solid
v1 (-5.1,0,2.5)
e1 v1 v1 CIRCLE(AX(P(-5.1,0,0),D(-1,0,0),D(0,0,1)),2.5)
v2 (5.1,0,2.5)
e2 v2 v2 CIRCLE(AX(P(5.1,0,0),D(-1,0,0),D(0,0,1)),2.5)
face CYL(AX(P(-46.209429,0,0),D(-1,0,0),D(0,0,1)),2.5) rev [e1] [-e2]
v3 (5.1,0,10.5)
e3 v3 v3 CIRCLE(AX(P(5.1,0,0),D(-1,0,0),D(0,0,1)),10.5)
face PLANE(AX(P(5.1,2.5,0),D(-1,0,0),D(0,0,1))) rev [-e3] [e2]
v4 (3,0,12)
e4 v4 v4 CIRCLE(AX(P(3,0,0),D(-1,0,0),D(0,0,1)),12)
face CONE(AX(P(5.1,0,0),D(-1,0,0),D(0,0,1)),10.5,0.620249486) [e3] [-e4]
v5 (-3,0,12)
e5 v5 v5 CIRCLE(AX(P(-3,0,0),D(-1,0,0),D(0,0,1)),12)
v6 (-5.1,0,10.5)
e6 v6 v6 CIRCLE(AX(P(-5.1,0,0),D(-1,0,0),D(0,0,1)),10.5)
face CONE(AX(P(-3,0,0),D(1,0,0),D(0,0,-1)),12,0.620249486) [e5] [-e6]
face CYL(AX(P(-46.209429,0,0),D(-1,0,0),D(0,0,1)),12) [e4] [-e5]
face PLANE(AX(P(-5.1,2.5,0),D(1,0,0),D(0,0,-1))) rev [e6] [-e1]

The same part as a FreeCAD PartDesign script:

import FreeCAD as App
import Part
import Sketcher

V = App.Vector
Q = App.Units.Quantity

doc = App.newDocument("Part")
body = doc.addObject("PartDesign::Body", "Body")

sketch1 = doc.addObject("Sketcher::SketchObject", "Sketch")
body.addObject(sketch1)
sketch1.AttachmentSupport = (doc.XY_Plane, [""])
sketch1.MapMode = "FlatFace"
sketch1.addGeometry([
    Part.LineSegment(V(-5.1, 2.5, 0), V(5.1, 2.5, 0)),
    Part.LineSegment(V(5.1, 2.5, 0), V(5.1, 10.5, 0)),
    Part.LineSegment(V(5.1, 10.5, 0), V(3, 12, 0)),
    Part.LineSegment(V(3, 12, 0), V(-3, 12, 0)),
    Part.LineSegment(V(-3, 12, 0), V(-5.1, 10.5, 0)),
    Part.LineSegment(V(-5.1, 10.5, 0), V(-5.1, 2.5, 0)),
], False)
sketch1.addConstraint([
    Sketcher.Constraint("Coincident", 0, 2, 1, 1),
    Sketcher.Constraint("Coincident", 1, 2, 2, 1),
    Sketcher.Constraint("Coincident", 2, 2, 3, 1),
    Sketcher.Constraint("Coincident", 3, 2, 4, 1),
    Sketcher.Constraint("Coincident", 4, 2, 5, 1),
    Sketcher.Constraint("Coincident", 5, 2, 0, 1),
    Sketcher.Constraint("Horizontal", 0),
    Sketcher.Constraint("Vertical", 1),
    Sketcher.Constraint("Horizontal", 3),
    Sketcher.Constraint("Vertical", 5),
    Sketcher.Constraint("Symmetric", 1, 2, 4, 2, -2),
    Sketcher.Constraint("Equal", 2, 4),
    Sketcher.Constraint("DistanceX", 3, 2, 3, 1, Q("6 mm")),
    Sketcher.Constraint("DistanceY", 1, 1, 1, 2, Q("8 mm")),
    Sketcher.Constraint("DistanceX", 0, 1, 0, 2, Q("10.2 mm")),
    Sketcher.Constraint("DistanceY", -1, 1, 2, 2, Q("12 mm")),
    Sketcher.Constraint("DistanceY", -1, 1, 0, 2, Q("2.5 mm")),
])
revolution = doc.addObject("PartDesign::Revolution", "Revolution")
body.addObject(revolution)
revolution.Profile = sketch1
revolution.ReferenceAxis = (sketch1, ["H_Axis"])
revolution.Angle = 360

doc.recompute()
